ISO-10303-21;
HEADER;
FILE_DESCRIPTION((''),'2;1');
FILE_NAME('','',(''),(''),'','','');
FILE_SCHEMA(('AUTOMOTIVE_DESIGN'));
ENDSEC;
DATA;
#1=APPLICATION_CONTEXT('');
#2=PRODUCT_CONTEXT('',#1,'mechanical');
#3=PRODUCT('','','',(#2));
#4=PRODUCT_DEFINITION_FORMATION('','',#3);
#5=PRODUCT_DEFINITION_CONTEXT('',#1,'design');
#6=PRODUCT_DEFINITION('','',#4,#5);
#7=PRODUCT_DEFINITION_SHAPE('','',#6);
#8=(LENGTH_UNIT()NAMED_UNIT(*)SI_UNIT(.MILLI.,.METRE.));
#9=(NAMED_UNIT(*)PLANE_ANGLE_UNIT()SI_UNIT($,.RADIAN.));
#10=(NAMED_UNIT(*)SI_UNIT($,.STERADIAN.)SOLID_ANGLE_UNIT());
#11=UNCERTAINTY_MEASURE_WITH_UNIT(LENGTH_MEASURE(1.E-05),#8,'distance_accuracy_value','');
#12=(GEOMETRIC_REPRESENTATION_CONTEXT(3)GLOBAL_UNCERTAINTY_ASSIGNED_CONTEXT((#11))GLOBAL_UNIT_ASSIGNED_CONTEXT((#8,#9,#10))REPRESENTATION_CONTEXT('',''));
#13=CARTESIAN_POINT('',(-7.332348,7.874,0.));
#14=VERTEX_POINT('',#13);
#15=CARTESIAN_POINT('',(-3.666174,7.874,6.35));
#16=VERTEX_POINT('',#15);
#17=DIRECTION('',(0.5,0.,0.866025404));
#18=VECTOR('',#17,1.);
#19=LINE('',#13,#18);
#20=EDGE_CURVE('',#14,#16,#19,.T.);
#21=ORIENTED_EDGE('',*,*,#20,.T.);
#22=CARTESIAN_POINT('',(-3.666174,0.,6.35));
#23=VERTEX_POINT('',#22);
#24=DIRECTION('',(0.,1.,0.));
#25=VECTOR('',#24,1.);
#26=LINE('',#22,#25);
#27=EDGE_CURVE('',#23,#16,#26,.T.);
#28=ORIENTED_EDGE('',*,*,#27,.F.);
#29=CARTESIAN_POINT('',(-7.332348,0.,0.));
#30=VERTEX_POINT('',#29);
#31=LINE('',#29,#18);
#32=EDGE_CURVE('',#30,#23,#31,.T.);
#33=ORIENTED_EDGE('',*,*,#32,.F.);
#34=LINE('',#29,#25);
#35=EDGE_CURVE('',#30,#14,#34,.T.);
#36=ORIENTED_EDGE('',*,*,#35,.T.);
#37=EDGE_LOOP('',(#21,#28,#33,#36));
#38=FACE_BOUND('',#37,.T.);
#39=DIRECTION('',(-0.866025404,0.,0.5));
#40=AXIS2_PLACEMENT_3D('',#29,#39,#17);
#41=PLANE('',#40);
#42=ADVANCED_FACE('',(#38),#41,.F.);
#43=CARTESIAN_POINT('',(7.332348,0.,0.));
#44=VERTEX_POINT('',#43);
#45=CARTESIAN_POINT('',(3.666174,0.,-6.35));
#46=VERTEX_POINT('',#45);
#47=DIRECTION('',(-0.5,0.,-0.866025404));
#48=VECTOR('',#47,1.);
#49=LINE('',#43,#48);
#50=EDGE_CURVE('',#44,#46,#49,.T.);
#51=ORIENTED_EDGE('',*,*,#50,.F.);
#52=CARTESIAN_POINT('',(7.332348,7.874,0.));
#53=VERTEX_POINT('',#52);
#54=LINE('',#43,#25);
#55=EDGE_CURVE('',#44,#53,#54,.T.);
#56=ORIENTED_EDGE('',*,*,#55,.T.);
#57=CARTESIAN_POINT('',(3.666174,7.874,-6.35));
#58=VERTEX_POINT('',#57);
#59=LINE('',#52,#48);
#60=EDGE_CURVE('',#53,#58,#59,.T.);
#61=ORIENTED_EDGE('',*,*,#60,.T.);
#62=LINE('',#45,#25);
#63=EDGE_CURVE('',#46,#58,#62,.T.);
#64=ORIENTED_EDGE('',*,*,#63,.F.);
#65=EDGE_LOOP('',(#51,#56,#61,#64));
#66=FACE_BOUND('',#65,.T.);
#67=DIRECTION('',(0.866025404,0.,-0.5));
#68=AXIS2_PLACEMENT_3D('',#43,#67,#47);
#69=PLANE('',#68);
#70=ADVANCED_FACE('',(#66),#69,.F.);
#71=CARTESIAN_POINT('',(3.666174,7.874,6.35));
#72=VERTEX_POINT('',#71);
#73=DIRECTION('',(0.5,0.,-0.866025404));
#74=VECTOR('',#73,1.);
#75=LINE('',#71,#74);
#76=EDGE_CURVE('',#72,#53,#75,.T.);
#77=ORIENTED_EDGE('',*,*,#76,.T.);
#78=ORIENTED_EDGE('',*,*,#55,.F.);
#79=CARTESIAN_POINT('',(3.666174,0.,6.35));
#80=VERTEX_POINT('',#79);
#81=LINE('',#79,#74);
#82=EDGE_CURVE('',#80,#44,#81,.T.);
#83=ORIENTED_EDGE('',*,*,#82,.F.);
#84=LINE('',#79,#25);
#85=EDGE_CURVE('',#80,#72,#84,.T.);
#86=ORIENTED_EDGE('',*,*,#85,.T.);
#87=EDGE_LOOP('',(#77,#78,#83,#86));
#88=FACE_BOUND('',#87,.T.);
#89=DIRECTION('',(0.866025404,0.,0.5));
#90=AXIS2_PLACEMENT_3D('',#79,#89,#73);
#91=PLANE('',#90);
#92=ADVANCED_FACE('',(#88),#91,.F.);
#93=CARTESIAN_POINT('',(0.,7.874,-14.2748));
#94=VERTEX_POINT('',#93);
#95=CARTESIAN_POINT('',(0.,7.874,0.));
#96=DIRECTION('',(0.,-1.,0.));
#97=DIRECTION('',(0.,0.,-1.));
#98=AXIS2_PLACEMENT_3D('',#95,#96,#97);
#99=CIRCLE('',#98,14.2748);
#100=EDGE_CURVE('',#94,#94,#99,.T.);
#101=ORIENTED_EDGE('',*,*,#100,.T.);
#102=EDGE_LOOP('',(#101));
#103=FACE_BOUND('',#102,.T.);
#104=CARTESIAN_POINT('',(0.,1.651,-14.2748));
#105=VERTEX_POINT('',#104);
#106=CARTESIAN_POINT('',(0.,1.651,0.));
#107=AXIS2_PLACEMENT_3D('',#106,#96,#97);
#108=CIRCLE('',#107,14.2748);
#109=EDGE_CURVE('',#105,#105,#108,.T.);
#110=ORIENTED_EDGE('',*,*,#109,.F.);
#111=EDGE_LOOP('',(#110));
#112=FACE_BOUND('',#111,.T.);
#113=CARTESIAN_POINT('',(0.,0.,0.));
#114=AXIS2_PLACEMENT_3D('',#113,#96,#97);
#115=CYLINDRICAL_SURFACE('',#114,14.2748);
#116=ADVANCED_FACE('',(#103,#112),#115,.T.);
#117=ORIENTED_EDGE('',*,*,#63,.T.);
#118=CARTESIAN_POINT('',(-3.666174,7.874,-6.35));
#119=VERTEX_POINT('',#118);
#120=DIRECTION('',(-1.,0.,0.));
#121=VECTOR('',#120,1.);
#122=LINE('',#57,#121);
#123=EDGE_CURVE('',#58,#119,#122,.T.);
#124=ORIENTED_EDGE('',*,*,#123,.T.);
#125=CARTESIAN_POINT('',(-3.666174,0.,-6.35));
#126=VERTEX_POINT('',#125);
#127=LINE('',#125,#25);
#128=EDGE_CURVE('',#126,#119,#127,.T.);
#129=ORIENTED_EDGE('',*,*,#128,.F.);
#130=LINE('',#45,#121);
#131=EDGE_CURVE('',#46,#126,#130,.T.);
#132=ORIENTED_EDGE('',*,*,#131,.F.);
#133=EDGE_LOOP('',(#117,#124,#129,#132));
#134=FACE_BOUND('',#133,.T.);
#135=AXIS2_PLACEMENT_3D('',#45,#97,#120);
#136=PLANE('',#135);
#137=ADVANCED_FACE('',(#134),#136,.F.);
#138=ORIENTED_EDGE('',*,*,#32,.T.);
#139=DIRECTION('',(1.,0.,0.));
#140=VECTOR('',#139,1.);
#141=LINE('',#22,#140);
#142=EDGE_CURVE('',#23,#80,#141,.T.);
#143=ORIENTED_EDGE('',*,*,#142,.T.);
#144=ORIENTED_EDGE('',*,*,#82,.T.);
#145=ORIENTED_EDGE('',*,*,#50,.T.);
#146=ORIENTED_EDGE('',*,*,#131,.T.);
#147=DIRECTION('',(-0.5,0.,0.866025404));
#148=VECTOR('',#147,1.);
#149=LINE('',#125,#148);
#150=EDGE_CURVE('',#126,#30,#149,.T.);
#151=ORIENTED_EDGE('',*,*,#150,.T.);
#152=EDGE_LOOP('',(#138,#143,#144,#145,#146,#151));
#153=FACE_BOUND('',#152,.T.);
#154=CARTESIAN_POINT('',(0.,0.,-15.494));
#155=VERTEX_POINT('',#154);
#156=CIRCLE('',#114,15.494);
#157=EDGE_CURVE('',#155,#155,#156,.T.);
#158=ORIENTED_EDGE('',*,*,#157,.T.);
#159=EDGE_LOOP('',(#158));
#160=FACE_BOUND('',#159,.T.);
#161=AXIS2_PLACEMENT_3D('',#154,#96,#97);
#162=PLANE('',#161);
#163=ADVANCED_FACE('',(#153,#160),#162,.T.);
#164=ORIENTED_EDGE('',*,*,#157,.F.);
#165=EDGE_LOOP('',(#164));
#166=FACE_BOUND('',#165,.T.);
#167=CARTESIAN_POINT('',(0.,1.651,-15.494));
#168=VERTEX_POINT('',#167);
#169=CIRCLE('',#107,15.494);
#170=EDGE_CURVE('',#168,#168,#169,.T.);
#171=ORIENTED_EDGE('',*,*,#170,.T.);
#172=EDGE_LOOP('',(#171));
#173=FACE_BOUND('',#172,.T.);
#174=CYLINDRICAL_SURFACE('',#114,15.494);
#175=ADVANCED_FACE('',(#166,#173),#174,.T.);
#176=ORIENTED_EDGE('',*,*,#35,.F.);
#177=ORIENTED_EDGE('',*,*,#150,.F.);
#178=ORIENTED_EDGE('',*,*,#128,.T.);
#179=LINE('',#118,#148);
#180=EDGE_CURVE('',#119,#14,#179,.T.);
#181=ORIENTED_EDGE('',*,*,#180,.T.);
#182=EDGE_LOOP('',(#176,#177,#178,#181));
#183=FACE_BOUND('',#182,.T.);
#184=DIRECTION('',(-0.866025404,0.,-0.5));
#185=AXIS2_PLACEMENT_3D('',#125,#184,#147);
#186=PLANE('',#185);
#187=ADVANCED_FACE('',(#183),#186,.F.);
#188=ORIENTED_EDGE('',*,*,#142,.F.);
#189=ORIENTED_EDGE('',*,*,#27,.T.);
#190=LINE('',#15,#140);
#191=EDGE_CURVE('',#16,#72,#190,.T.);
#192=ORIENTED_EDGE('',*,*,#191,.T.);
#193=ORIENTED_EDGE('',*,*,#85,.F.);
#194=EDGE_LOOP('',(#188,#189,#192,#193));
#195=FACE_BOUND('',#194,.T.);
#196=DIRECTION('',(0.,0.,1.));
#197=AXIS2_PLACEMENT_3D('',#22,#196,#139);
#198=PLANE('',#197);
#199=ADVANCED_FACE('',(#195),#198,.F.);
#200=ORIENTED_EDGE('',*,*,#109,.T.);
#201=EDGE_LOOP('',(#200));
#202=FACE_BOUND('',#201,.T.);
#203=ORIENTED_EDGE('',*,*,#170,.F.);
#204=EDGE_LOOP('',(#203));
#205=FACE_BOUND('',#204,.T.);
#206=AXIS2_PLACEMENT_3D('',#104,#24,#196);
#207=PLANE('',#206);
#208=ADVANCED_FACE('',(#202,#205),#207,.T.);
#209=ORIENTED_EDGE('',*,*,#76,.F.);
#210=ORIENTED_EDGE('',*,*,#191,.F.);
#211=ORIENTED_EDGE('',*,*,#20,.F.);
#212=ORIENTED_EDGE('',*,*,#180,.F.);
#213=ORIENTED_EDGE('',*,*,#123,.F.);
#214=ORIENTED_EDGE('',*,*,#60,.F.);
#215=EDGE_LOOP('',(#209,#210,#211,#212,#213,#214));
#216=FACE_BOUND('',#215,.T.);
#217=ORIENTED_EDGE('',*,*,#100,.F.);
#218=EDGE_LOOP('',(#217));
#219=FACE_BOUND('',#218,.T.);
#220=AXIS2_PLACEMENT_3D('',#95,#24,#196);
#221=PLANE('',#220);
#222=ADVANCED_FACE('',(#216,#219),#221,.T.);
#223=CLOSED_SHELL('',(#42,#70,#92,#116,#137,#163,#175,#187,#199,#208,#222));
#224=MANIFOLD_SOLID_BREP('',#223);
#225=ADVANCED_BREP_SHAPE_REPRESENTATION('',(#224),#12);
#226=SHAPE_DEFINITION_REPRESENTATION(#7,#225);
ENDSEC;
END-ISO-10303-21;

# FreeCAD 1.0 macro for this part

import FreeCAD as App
import Part
import Sketcher
Q = App.Units.Quantity

doc = App.newDocument("Part")
body = doc.addObject("PartDesign::Body", "Body")

sketch1 = body.newObject("Sketcher::SketchObject", "Sketch")
sketch1.AttachmentSupport = (doc.getObject("YZ_Plane"), [""])
sketch1.MapMode = "FlatFace"
sketch1.addGeometry(Part.LineSegment(App.Vector(7.874, -14.2748, 0), App.Vector(7.874, 0, 0)), False)
sketch1.addGeometry(Part.LineSegment(App.Vector(7.874, 0, 0), App.Vector(0, 0, 0)), False)
sketch1.addGeometry(Part.LineSegment(App.Vector(0, 0, 0), App.Vector(0, -15.494, 0)), False)
sketch1.addGeometry(Part.LineSegment(App.Vector(0, -15.494, 0), App.Vector(1.651, -15.494, 0)), False)
sketch1.addGeometry(Part.LineSegment(App.Vector(1.651, -15.494, 0), App.Vector(1.651, -14.2748, 0)), False)
sketch1.addGeometry(Part.LineSegment(App.Vector(1.651, -14.2748, 0), App.Vector(7.874, -14.2748, 0)), False)
sketch1.addConstraint(Sketcher.Constraint("Coincident", 0, 2, 1, 1))
sketch1.addConstraint(Sketcher.Constraint("Coincident", 1, 2, 2, 1))
sketch1.addConstraint(Sketcher.Constraint("Coincident", 2, 2, 3, 1))
sketch1.addConstraint(Sketcher.Constraint("Coincident", 3, 2, 4, 1))
sketch1.addConstraint(Sketcher.Constraint("Coincident", 4, 2, 5, 1))
sketch1.addConstraint(Sketcher.Constraint("Coincident", 5, 2, 0, 1))
sketch1.addConstraint(Sketcher.Constraint("Vertical", 0))
sketch1.addConstraint(Sketcher.Constraint("Horizontal", 1))
sketch1.addConstraint(Sketcher.Constraint("Vertical", 2))
sketch1.addConstraint(Sketcher.Constraint("Horizontal", 3))
sketch1.addConstraint(Sketcher.Constraint("Vertical", 4))
sketch1.addConstraint(Sketcher.Constraint("Horizontal", 5))
sketch1.addConstraint(Sketcher.Constraint("Coincident", 1, 2, -1, 1))
sketch1.addConstraint(Sketcher.Constraint("DistanceX", 1, 2, 1, 1, Q("0.31 in")))
sketch1.addConstraint(Sketcher.Constraint("DistanceY", 2, 2, 2, 1, Q("0.61 in")))
sketch1.addConstraint(Sketcher.Constraint("DistanceX", 3, 1, 3, 2, Q("0.065 in")))
sketch1.addConstraint(Sketcher.Constraint("DistanceY", 0, 1, 0, 2, Q("0.562 in")))
revolution = body.newObject("PartDesign::Revolution", "Revolution")
revolution.Profile = sketch1
revolution.ReferenceAxis = (sketch1, ["H_Axis"])
revolution.Angle = 360

sketch2 = body.newObject("Sketcher::SketchObject", "Sketch001")
sketch2.AttachmentSupport = (doc.getObject("XZ_Plane"), [""])
sketch2.MapMode = "FlatFace"
sketch2.AttachmentOffset = App.Placement(App.Vector(0, 0, -0.31 * 25.4), App.Rotation())
sketch2.addGeometry(Part.LineSegment(App.Vector(-3.666174, -6.35, 0), App.Vector(-7.332348, 0, 0)), False)
sketch2.addGeometry(Part.LineSegment(App.Vector(-7.332348, 0, 0), App.Vector(-3.666174, 6.35, 0)), False)
sketch2.addGeometry(Part.LineSegment(App.Vector(-3.666174, 6.35, 0), App.Vector(3.666174, 6.35, 0)), False)
sketch2.addGeometry(Part.LineSegment(App.Vector(3.666174, 6.35, 0), App.Vector(7.332348, 0, 0)), False)
sketch2.addGeometry(Part.LineSegment(App.Vector(7.332348, 0, 0), App.Vector(3.666174, -6.35, 0)), False)
sketch2.addGeometry(Part.LineSegment(App.Vector(3.666174, -6.35, 0), App.Vector(-3.666174, -6.35, 0)), False)
sketch2.addConstraint(Sketcher.Constraint("Coincident", 0, 2, 1, 1))
sketch2.addConstraint(Sketcher.Constraint("Coincident", 1, 2, 2, 1))
sketch2.addConstraint(Sketcher.Constraint("Coincident", 2, 2, 3, 1))
sketch2.addConstraint(Sketcher.Constraint("Coincident", 3, 2, 4, 1))
sketch2.addConstraint(Sketcher.Constraint("Coincident", 4, 2, 5, 1))
sketch2.addConstraint(Sketcher.Constraint("Coincident", 5, 2, 0, 1))
sketch2.addConstraint(Sketcher.Constraint("Horizontal", 2))
sketch2.addConstraint(Sketcher.Constraint("Horizontal", 5))
sketch2.addConstraint(Sketcher.Constraint("Symmetric", 0, 2, 3, 2, -1, 1))
sketch2.addConstraint(Sketcher.Constraint("Symmetric", 1, 2, 4, 2, -1, 1))
sketch2.addConstraint(Sketcher.Constraint("PointOnObject", 0, 2, -1))
sketch2.addConstraint(Sketcher.Constraint("Parallel", 0, 3))
sketch2.addConstraint(Sketcher.Constraint("Vertical", 2, 2, 4, 2))
sketch2.addConstraint(Sketcher.Constraint("Angle", 0, Q("120 deg")))
sketch2.addConstraint(Sketcher.Constraint("DistanceY", 4, 2, 2, 2, Q("0.5 in")))
sketch2.addConstraint(Sketcher.Constraint("DistanceX", 2, 1, 2, 2, Q("7.332348 mm")))
pocket1 = body.newObject("PartDesign::Pocket", "Pocket")
pocket1.Profile = sketch2
pocket1.Type = "ThroughAll"
pocket1.Reversed = True

doc.recompute()
